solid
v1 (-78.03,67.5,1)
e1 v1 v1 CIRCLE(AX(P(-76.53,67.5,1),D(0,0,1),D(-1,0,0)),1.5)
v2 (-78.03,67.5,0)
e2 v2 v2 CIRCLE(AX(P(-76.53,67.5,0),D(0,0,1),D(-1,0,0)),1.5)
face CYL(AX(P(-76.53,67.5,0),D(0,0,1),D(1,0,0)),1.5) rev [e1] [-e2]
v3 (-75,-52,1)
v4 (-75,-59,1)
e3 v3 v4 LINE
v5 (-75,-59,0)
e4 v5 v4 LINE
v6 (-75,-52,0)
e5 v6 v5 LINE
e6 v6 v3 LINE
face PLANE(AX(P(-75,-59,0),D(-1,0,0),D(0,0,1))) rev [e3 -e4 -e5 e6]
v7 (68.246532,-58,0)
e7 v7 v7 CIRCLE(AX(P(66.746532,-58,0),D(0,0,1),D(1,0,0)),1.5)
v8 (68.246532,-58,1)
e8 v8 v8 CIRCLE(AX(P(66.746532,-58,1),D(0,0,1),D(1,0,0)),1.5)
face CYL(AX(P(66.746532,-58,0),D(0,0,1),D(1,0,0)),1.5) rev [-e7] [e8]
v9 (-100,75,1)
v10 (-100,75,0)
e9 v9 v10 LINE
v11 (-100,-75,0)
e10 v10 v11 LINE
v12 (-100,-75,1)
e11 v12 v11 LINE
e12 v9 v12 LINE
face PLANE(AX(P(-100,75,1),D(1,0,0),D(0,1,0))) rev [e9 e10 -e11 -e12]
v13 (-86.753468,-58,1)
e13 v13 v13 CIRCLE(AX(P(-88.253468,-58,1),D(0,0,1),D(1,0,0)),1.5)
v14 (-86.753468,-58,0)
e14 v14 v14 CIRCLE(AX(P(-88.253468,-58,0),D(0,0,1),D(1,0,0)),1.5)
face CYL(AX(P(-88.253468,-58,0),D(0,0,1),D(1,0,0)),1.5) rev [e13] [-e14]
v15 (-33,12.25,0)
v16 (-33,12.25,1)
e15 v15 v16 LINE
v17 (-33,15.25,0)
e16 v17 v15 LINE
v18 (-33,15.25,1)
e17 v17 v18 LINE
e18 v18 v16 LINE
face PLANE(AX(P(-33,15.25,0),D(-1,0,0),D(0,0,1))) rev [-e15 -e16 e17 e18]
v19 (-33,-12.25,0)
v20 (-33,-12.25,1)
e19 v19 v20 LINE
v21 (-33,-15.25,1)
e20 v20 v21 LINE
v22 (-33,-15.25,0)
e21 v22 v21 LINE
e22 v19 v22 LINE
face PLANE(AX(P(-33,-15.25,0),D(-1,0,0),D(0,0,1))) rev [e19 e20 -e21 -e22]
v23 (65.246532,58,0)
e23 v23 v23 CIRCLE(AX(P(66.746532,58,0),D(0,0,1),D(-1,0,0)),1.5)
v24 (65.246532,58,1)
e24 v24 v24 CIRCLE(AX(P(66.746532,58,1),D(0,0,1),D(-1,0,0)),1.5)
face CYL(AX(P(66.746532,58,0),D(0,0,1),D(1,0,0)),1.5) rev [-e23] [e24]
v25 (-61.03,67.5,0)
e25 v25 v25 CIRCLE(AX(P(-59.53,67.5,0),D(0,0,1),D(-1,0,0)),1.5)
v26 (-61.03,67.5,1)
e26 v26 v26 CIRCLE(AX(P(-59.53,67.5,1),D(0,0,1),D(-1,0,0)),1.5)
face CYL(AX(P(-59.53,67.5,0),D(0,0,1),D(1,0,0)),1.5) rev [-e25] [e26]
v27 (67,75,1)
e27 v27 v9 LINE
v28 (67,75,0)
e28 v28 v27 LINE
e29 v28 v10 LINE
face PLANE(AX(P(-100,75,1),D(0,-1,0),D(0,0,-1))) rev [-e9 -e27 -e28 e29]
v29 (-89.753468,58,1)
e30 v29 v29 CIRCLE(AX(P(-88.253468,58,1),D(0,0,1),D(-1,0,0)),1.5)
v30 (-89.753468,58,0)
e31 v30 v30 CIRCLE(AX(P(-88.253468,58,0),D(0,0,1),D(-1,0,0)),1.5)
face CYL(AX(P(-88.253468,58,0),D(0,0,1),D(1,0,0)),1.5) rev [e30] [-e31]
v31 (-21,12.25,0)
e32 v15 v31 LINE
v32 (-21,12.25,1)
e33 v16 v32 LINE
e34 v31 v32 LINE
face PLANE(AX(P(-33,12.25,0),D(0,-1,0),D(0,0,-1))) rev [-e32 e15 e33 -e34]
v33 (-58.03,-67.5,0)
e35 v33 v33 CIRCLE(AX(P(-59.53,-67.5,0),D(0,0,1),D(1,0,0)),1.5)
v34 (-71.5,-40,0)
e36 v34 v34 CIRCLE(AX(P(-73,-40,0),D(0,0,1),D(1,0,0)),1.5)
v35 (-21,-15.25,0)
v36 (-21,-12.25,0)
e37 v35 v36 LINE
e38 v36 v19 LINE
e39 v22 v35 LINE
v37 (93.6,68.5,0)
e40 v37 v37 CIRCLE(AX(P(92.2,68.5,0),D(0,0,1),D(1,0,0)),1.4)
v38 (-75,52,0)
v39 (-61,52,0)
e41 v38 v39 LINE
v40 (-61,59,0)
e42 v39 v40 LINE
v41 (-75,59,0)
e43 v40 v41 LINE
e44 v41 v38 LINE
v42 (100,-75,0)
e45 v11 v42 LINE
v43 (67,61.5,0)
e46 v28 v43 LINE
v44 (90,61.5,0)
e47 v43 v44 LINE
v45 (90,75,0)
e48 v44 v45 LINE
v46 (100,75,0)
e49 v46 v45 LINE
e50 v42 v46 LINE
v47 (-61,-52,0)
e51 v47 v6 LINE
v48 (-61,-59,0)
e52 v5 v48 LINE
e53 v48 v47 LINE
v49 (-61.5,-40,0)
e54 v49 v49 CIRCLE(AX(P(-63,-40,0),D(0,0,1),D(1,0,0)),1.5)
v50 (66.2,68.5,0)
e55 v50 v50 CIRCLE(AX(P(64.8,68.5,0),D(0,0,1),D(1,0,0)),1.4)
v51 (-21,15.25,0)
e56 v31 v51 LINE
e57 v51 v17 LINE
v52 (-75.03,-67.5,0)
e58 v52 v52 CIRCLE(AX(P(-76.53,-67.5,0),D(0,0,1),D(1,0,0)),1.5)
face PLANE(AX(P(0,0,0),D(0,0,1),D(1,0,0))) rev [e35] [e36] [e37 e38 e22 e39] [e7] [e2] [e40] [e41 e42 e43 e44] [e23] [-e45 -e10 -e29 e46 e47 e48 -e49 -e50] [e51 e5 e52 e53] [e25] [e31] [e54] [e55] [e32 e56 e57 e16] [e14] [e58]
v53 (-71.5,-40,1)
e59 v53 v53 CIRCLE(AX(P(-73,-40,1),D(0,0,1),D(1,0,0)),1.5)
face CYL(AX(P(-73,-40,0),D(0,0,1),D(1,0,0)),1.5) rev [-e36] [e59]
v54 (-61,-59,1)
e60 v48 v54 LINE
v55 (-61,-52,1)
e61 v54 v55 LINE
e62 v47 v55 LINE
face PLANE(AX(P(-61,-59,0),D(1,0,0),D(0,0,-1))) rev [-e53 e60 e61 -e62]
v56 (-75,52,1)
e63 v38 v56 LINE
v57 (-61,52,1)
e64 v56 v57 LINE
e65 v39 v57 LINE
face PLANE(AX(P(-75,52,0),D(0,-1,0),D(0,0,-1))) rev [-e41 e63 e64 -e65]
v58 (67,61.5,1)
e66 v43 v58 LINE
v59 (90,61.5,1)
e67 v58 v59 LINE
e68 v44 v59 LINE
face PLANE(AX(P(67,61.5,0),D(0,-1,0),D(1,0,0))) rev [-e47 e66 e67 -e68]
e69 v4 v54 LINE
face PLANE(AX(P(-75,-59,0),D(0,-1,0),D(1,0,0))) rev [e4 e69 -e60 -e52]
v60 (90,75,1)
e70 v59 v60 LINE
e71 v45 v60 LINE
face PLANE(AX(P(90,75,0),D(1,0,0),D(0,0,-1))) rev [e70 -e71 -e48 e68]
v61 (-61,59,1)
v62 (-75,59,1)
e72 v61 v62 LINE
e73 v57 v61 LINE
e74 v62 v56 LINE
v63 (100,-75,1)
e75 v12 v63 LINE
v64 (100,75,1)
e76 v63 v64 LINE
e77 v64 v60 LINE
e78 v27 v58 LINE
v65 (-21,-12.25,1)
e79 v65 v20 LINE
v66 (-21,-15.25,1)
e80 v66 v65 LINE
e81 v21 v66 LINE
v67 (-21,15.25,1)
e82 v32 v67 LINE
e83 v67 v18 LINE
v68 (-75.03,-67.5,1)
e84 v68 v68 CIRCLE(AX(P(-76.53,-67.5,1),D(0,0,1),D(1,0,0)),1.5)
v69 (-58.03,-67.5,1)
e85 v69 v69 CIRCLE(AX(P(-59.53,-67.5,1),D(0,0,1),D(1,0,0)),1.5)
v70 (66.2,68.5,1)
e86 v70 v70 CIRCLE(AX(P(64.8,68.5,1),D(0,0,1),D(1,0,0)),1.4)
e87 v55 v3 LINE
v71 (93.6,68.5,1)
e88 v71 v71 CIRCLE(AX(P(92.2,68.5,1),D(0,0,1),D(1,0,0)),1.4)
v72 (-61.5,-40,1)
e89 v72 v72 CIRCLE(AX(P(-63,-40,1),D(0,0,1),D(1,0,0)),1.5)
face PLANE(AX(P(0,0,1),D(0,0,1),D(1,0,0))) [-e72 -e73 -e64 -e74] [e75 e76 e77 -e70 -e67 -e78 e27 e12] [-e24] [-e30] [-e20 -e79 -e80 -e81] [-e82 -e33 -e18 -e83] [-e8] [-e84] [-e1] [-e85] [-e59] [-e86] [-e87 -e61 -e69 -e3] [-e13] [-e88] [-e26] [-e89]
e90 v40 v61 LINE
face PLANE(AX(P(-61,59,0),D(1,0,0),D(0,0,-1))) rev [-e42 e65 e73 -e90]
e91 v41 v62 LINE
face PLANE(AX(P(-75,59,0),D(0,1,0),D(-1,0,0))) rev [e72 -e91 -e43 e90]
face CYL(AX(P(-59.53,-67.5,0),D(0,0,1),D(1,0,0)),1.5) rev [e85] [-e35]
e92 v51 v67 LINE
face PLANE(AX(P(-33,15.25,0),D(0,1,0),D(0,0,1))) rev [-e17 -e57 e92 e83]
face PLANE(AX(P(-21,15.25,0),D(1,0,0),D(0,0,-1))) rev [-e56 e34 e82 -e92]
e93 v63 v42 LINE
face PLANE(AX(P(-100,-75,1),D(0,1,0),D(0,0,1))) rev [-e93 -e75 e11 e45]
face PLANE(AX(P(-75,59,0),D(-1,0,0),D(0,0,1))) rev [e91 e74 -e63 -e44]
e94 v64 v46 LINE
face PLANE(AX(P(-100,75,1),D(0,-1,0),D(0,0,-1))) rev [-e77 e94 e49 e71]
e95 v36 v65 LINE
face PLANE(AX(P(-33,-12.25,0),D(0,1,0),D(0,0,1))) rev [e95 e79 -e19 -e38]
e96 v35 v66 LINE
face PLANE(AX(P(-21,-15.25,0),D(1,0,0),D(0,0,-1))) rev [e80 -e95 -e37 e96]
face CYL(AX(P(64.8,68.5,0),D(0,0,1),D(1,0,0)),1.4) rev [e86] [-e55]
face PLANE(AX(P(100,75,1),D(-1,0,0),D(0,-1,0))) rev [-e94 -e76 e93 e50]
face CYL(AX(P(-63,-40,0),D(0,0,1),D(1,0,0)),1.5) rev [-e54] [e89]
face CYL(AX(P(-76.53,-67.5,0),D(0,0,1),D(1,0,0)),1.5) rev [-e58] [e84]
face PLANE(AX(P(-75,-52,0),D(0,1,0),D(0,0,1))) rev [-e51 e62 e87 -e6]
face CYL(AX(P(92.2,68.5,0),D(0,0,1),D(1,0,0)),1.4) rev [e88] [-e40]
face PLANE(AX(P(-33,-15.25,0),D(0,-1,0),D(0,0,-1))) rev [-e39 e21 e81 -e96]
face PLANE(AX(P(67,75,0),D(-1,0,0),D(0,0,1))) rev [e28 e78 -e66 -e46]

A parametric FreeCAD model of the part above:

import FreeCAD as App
import Part
import Sketcher

V = App.Vector
Q = App.Units.Quantity

doc = App.newDocument("Part")
body = doc.addObject("PartDesign::Body", "Body")

sketch1 = doc.addObject("Sketcher::SketchObject", "Sketch")
body.addObject(sketch1)
sketch1.AttachmentSupport = (doc.XY_Plane, [""])
sketch1.MapMode = "FlatFace"
sketch1.addGeometry([
    Part.LineSegment(V(-100, 75, 0), V(-100, -75, 0)),
    Part.LineSegment(V(-100, -75, 0), V(100, -75, 0)),
    Part.LineSegment(V(100, -75, 0), V(100, 75, 0)),
    Part.LineSegment(V(100, 75, 0), V(-100, 75, 0)),
], False)
sketch1.addConstraint([
    Sketcher.Constraint("Coincident", 0, 2, 1, 1),
    Sketcher.Constraint("Coincident", 1, 2, 2, 1),
    Sketcher.Constraint("Coincident", 2, 2, 3, 1),
    Sketcher.Constraint("Coincident", 3, 2, 0, 1),
    Sketcher.Constraint("Vertical", 0),
    Sketcher.Constraint("Horizontal", 1),
    Sketcher.Constraint("Vertical", 2),
    Sketcher.Constraint("Horizontal", 3),
    Sketcher.Constraint("Symmetric", 0, 2, 2, 2, -1, 1),
    Sketcher.Constraint("DistanceX", 1, 1, 1, 2, Q("200 mm")),
    Sketcher.Constraint("DistanceY", 0, 2, 0, 1, Q("150 mm")),
])
pad1 = doc.addObject("PartDesign::Pad", "Pad")
body.addObject(pad1)
pad1.Profile = sketch1
pad1.Length = 1

sketch2 = doc.addObject("Sketcher::SketchObject", "Sketch001")
body.addObject(sketch2)
sketch2.AttachmentSupport = (doc.XY_Plane, [""])
sketch2.MapMode = "FlatFace"
sketch2.AttachmentOffset = App.Placement(V(0, 0, 1), App.Rotation())
sketch2.addGeometry([
    Part.Circle(V(-76.5, -67.5, 0), V(0, 0, 1), 1.5),
    Part.Circle(V(-59.5, -67.5, 0), V(0, 0, 1), 1.5),
    Part.Circle(V(-59.5, 67.5, 0), V(0, 0, 1), 1.5),
    Part.Circle(V(-76.5, 67.5, 0), V(0, 0, 1), 1.5),
    Part.Circle(V(-73, -40, 0), V(0, 0, 1), 1.5),
    Part.Circle(V(-63, -40, 0), V(0, 0, 1), 1.5),
    Part.Circle(V(-88.3, -58, 0), V(0, 0, 1), 1.5),
    Part.Circle(V(66.7, -58, 0), V(0, 0, 1), 1.5),
    Part.Circle(V(66.7, 58, 0), V(0, 0, 1), 1.5),
    Part.Circle(V(-88.3, 58, 0), V(0, 0, 1), 1.5),
    Part.Circle(V(64.8, 68.5, 0), V(0, 0, 1), 1.4),
    Part.Circle(V(92.2, 68.5, 0), V(0, 0, 1), 1.4),
    Part.LineSegment(V(-75, -52, 0), V(-75, -59, 0)),
    Part.LineSegment(V(-75, -59, 0), V(-61, -59, 0)),
    Part.LineSegment(V(-61, -59, 0), V(-61, -52, 0)),
    Part.LineSegment(V(-61, -52, 0), V(-75, -52, 0)),
    Part.LineSegment(V(-75, 59, 0), V(-75, 52, 0)),
    Part.LineSegment(V(-75, 52, 0), V(-61, 52, 0)),
    Part.LineSegment(V(-61, 52, 0), V(-61, 59, 0)),
    Part.LineSegment(V(-61, 59, 0), V(-75, 59, 0)),
    Part.LineSegment(V(-33, -12.2, 0), V(-33, -15.2, 0)),
    Part.LineSegment(V(-33, -15.2, 0), V(-21, -15.2, 0)),
    Part.LineSegment(V(-21, -15.2, 0), V(-21, -12.2, 0)),
    Part.LineSegment(V(-21, -12.2, 0), V(-33, -12.2, 0)),
    Part.LineSegment(V(-33, 15.2, 0), V(-33, 12.2, 0)),
    Part.LineSegment(V(-33, 12.2, 0), V(-21, 12.2, 0)),
    Part.LineSegment(V(-21, 12.2, 0), V(-21, 15.2, 0)),
    Part.LineSegment(V(-21, 15.2, 0), V(-33, 15.2, 0)),
    Part.LineSegment(V(67, 75, 0), V(67, 61.5, 0)),
    Part.LineSegment(V(67, 61.5, 0), V(90, 61.5, 0)),
    Part.LineSegment(V(90, 61.5, 0), V(90, 75, 0)),
    Part.LineSegment(V(90, 75, 0), V(67, 75, 0)),
], False)
sketch2.addConstraint([
    Sketcher.Constraint("Coincident", 12, 2, 13, 1),
    Sketcher.Constraint("Coincident", 13, 2, 14, 1),
    Sketcher.Constraint("Coincident", 14, 2, 15, 1),
    Sketcher.Constraint("Coincident", 15, 2, 12, 1),
    Sketcher.Constraint("Coincident", 16, 2, 17, 1),
    Sketcher.Constraint("Coincident", 17, 2, 18, 1),
    Sketcher.Constraint("Coincident", 18, 2, 19, 1),
    Sketcher.Constraint("Coincident", 19, 2, 16, 1),
    Sketcher.Constraint("Coincident", 20, 2, 21, 1),
    Sketcher.Constraint("Coincident", 21, 2, 22, 1),
    Sketcher.Constraint("Coincident", 22, 2, 23, 1),
    Sketcher.Constraint("Coincident", 23, 2, 20, 1),
    Sketcher.Constraint("Coincident", 24, 2, 25, 1),
    Sketcher.Constraint("Coincident", 25, 2, 26, 1),
    Sketcher.Constraint("Coincident", 26, 2, 27, 1),
    Sketcher.Constraint("Coincident", 27, 2, 24, 1),
    Sketcher.Constraint("Coincident", 28, 2, 29, 1),
    Sketcher.Constraint("Coincident", 29, 2, 30, 1),
    Sketcher.Constraint("Coincident", 30, 2, 31, 1),
    Sketcher.Constraint("Coincident", 31, 2, 28, 1),
    Sketcher.Constraint("Vertical", 12),
    Sketcher.Constraint("Horizontal", 13),
    Sketcher.Constraint("Vertical", 14),
    Sketcher.Constraint("Horizontal", 15),
    Sketcher.Constraint("Vertical", 16),
    Sketcher.Constraint("Horizontal", 17),
    Sketcher.Constraint("Vertical", 18),
    Sketcher.Constraint("Horizontal", 19),
    Sketcher.Constraint("Vertical", 20),
    Sketcher.Constraint("Horizontal", 21),
    Sketcher.Constraint("Vertical", 22),
    Sketcher.Constraint("Horizontal", 23),
    Sketcher.Constraint("Vertical", 24),
    Sketcher.Constraint("Horizontal", 25),
    Sketcher.Constraint("Vertical", 26),
    Sketcher.Constraint("Horizontal", 27),
    Sketcher.Constraint("Vertical", 28),
    Sketcher.Constraint("Horizontal", 29),
    Sketcher.Constraint("Vertical", 30),
    Sketcher.Constraint("Horizontal", 31),
    Sketcher.Constraint("Equal", 0, 1),
    Sketcher.Constraint("Equal", 1, 2),
    Sketcher.Constraint("Equal", 2, 3),
    Sketcher.Constraint("Equal", 3, 4),
    Sketcher.Constraint("Equal", 4, 5),
    Sketcher.Constraint("Equal", 5, 6),
    Sketcher.Constraint("Equal", 6, 7),
    Sketcher.Constraint("Equal", 7, 8),
    Sketcher.Constraint("Equal", 8, 9),
    Sketcher.Constraint("Equal", 10, 11),
    Sketcher.Constraint("Symmetric", 1, 3, 2, 3, -1),
    Sketcher.Constraint("Symmetric", 0, 3, 3, 3, -1),
    Sketcher.Constraint("Symmetric", 7, 3, 8, 3, -1),
    Sketcher.Constraint("Symmetric", 6, 3, 9, 3, -1),
    Sketcher.Constraint("Symmetric", 15, 2, 16, 2, -1),
    Sketcher.Constraint("Symmetric", 13, 2, 18, 2, -1),
    Sketcher.Constraint("Symmetric", 23, 2, 24, 2, -1),
    Sketcher.Constraint("Symmetric", 21, 2, 26, 2, -1),
    Sketcher.Constraint("Horizontal", 0, 3, 1, 3),
    Sketcher.Constraint("Horizontal", 4, 3, 5, 3),
    Sketcher.Constraint("Horizontal", 6, 3, 7, 3),
    Sketcher.Constraint("Horizontal", 10, 3, 11, 3),
    Sketcher.Constraint("Diameter", 0, Q("3 mm")),
    Sketcher.Constraint("Diameter", 10, Q("2.8 mm")),
    Sketcher.Constraint("DistanceX", 13, 1, 13, 2, Q("14 mm")),
    Sketcher.Constraint("DistanceX", 21, 1, 21, 2, Q("12 mm")),
    Sketcher.Constraint("DistanceX", 29, 1, 29, 2, Q("23 mm")),
    Sketcher.Constraint("DistanceY", 12, 2, 12, 1, Q("7 mm")),
    Sketcher.Constraint("DistanceY", 20, 2, 20, 1, Q("3 mm")),
    Sketcher.Constraint("DistanceY", 28, 2, 28, 1, Q("13.5 mm")),
    Sketcher.Constraint("DistanceX", 4, 3, -1, 1, Q("73 mm")),
    Sketcher.Constraint("DistanceY", 4, 3, -1, 1, Q("40 mm")),
    Sketcher.Constraint("DistanceX", 5, 3, -1, 1, Q("63 mm")),
    Sketcher.Constraint("DistanceY", 6, 3, -1, 1, Q("58 mm")),
    Sketcher.Constraint("DistanceX", 12, 2, -1, 1, Q("75 mm")),
    Sketcher.Constraint("DistanceY", 12, 2, -1, 1, Q("59 mm")),
    Sketcher.Constraint("DistanceX", 20, 2, -1, 1, Q("33 mm")),
    Sketcher.Constraint("DistanceX", -1, 1, 28, 2, Q("67 mm")),
    Sketcher.Constraint("DistanceY", -1, 1, 30, 2, Q("75 mm")),
    Sketcher.Constraint("DistanceX", 0, 3, 1, 3, Q("17 mm")),
    Sketcher.Constraint("DistanceY", 1, 3, 2, 3, Q("135 mm")),
    Sketcher.Constraint("DistanceX", 6, 3, 7, 3, Q("155 mm")),
    Sketcher.Constraint("DistanceY", 2, 3, 10, 3, Q("1 mm")),
    Sketcher.Constraint("DistanceX", -1, 1, 10, 3, Q("64.8 mm")),
    Sketcher.Constraint("DistanceX", -1, 1, 11, 3, Q("92.2 mm")),
    Sketcher.Constraint("DistanceY", 23, 2, 24, 2, Q("24.5 mm")),
    Sketcher.Constraint("DistanceX", 0, 3, -1, 1, Q("76.53 mm")),
    Sketcher.Constraint("DistanceX", 6, 3, -1, 1, Q("88.253468 mm")),
])
pocket1 = doc.addObject("PartDesign::Pocket", "Pocket")
body.addObject(pocket1)
pocket1.Profile = sketch2
pocket1.Length = 1

doc.recompute()
